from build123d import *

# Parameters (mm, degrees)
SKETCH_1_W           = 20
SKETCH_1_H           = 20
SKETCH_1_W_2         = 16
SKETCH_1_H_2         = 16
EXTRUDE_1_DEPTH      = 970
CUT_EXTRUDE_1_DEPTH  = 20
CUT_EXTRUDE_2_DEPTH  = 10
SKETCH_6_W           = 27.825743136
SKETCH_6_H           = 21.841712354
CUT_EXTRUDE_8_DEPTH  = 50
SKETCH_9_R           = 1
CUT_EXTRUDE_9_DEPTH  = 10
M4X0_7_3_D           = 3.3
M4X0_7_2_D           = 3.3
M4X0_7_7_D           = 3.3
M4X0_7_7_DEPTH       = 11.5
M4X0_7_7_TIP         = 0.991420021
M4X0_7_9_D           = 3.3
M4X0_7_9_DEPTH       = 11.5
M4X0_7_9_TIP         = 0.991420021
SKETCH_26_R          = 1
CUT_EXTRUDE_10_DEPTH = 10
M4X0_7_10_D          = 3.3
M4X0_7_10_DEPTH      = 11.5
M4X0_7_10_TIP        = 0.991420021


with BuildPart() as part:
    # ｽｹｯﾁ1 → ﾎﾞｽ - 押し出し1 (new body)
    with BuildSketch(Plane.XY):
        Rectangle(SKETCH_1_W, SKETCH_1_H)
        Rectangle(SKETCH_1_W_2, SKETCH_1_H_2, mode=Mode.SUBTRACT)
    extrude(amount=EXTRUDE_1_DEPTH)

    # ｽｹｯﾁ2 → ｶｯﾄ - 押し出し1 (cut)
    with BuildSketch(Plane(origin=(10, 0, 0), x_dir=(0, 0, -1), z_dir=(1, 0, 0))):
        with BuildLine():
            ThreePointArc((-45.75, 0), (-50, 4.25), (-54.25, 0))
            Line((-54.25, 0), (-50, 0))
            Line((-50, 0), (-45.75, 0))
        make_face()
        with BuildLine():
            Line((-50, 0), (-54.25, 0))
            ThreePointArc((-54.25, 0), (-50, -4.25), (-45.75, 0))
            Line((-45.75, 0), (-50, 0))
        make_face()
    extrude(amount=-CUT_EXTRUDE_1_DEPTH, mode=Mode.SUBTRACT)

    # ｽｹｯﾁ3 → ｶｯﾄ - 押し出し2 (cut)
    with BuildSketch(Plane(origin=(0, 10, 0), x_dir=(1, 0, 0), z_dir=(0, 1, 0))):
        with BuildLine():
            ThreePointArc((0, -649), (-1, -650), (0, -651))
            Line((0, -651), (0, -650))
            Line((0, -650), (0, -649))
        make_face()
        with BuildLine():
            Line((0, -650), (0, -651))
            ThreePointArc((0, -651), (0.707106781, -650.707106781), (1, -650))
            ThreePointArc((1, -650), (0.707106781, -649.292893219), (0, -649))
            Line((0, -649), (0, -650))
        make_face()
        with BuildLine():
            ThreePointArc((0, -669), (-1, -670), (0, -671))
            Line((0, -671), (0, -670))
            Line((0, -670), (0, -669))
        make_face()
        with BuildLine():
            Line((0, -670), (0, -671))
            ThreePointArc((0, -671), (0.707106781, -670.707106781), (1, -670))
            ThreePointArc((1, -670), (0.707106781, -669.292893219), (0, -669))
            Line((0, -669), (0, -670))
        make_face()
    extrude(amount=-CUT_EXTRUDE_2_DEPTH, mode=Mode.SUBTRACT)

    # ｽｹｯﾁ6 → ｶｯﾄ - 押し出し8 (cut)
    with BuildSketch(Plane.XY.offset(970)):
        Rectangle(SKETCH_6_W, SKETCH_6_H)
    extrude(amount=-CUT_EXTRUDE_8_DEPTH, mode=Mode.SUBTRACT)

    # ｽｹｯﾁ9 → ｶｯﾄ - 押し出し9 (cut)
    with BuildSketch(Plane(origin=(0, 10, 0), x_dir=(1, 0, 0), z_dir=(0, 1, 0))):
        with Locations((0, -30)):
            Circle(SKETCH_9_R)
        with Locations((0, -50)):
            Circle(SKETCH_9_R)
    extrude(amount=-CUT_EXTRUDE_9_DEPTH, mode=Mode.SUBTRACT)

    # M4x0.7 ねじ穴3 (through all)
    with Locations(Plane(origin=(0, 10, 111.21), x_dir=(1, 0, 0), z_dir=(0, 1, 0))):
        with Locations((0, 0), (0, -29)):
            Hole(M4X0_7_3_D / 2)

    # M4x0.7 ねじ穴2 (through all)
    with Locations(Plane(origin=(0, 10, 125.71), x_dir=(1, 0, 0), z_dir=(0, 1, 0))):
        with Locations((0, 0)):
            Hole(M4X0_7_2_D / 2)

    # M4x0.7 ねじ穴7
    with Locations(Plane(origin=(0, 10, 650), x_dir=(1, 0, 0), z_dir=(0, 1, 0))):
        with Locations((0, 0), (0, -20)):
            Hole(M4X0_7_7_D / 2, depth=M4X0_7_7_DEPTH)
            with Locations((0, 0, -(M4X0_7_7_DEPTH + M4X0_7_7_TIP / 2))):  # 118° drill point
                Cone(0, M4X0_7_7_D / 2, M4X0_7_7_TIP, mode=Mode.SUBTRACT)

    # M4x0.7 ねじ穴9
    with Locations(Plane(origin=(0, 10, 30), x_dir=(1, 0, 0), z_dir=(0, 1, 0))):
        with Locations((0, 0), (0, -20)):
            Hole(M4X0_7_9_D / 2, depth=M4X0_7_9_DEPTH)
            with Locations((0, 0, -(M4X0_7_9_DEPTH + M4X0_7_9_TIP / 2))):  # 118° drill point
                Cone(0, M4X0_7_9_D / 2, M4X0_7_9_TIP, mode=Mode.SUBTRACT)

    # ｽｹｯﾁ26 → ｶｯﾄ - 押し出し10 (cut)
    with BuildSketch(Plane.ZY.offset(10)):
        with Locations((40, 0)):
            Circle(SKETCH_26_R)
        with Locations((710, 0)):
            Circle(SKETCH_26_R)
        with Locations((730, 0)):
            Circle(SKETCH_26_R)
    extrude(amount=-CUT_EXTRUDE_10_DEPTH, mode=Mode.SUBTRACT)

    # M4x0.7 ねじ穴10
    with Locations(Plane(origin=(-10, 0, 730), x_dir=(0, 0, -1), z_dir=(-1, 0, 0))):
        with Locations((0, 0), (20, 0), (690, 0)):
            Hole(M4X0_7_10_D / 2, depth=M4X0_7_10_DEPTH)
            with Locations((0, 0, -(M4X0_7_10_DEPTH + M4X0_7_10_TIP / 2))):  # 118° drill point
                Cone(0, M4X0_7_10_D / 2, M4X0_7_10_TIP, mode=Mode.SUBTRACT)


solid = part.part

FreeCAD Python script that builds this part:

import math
import FreeCAD as App
import Part
import Sketcher

V = App.Vector


def add_polygon(sketch, points):
    """Adds a closed chain of lines whose ends are joined by coincident constraints."""
    first, n = sketch.GeometryCount, len(points)
    for a, b in zip(points, points[1:] + points[:1]):
        sketch.addGeometry(Part.LineSegment(App.Vector(*a, 0), App.Vector(*b, 0)), False)
    for i in range(n):
        sketch.addConstraint(Sketcher.Constraint("Coincident", first + i, 2, first + (i + 1) % n, 1))

doc = App.newDocument("Part")
params = doc.addObject("Spreadsheet::Sheet", "Params")
for row, (alias, value) in enumerate([
    ("sketch1_width", "20 mm"),
    ("sketch1_width2", "16 mm"),
    ("pad1_length", "970 mm"),
    ("sketch2_diameter", "8.5 mm"),
    ("pocket1_length", "20 mm"),
    ("sketch3_radius", "1 mm"),
    ("pocket2_length", "10 mm"),
    ("pocket3_length", "50 mm"),
    ("sketch5_diameter", "2 mm"),
    ("pocket4_length", "10 mm"),
    ("sketch6_diameter", "3.3 mm"),
    ("hole_diameter", "3.3 mm"),
    ("sketch7_diameter", "3.3 mm"),
    ("hole2_diameter", "3.3 mm"),
    ("sketch8_diameter", "3.3 mm"),
    ("hole3_diameter", "3.3 mm"),
    ("hole3_depth", "11.5 mm"),
    ("sketch9_diameter", "3.3 mm"),
    ("hole4_diameter", "3.3 mm"),
    ("hole4_depth", "11.5 mm"),
    ("sketch10_diameter", "2 mm"),
    ("pocket5_length", "10 mm"),
    ("sketch11_diameter", "3.3 mm"),
    ("hole5_diameter", "3.3 mm"),
    ("hole5_depth", "11.5 mm"),
], start=1):
    params.set(f"A{row}", alias)
    params.set(f"B{row}", "=" + value)
    params.setAlias(f"B{row}", alias)

body = doc.addObject("PartDesign::Body", "Body")

# Sketch on XY plane
sketch1 = body.newObject("Sketcher::SketchObject", "Sketch")
sketch1.AttachmentSupport = (doc.getObject("XY_Plane"), [""])
sketch1.MapMode = "FlatFace"
add_polygon(sketch1, [(-10, 10), (-10, -10), (10, -10), (10, 10)])  # lines 0-3
add_polygon(sketch1, [(8, -8), (-8, -8), (-8, 8), (8, 8)])  # lines 4-7
sketch1.addConstraint([
    Sketcher.Constraint("Vertical", 0),
    Sketcher.Constraint("Horizontal", 1),
    Sketcher.Constraint("Vertical", 2),
    Sketcher.Constraint("Horizontal", 3),
    Sketcher.Constraint("Horizontal", 4),
    Sketcher.Constraint("Vertical", 5),
    Sketcher.Constraint("Horizontal", 6),
    Sketcher.Constraint("Vertical", 7),
    Sketcher.Constraint("Symmetric", 0, 2, 2, 2, -1, 1),
    Sketcher.Constraint("Symmetric", 4, 2, 6, 2, -1, 1),
    Sketcher.Constraint("Equal", 3, 0),
    Sketcher.Constraint("Equal", 6, 5),
    Sketcher.Constraint("DistanceX", 1, 1, 1, 2, 20.0),
    Sketcher.Constraint("DistanceX", 4, 2, 4, 1, 16.0),
])
sketch1.setExpression("Constraints[20]", "Params.sketch1_width")
sketch1.setExpression("Constraints[21]", "Params.sketch1_width2")
pad1 = body.newObject("PartDesign::Pad", "Pad")
pad1.Profile = sketch1
pad1.setExpression("Length", "Params.pad1_length")

# Sketch on YZ plane
sketch2 = body.newObject("Sketcher::SketchObject", "Sketch001")
sketch2.AttachmentSupport = (doc.getObject("YZ_Plane"), [""])
sketch2.MapMode = "FlatFace"
sketch2.AttachmentOffset = App.Placement(V(0, 0, 10), App.Rotation())
sketch2.addGeometry(Part.Circle(V(0, 50, 0), V(0, 0, 1), 4.2), False)
sketch2.addConstraint([
    Sketcher.Constraint("PointOnObject", 0, 3, -2),
    Sketcher.Constraint("Diameter", 0, 8.5),
    Sketcher.Constraint("DistanceY", -1, 1, 0, 3, 50.0),
])
sketch2.setExpression("Constraints[1]", "Params.sketch2_diameter")
pocket1 = body.newObject("PartDesign::Pocket", "Pocket")
pocket1.Profile = sketch2
pocket1.setExpression("Length", "Params.pocket1_length")

# Sketch on XZ plane
sketch3 = body.newObject("Sketcher::SketchObject", "Sketch002")
sketch3.AttachmentSupport = (doc.getObject("XZ_Plane"), [""])
sketch3.MapMode = "FlatFace"
sketch3.AttachmentOffset = App.Placement(V(0, 0, -10), App.Rotation())
sketch3.addGeometry([
    Part.ArcOfCircle(Part.Circle(V(0, 650, 0), V(0, 0, 1), 1), math.radians(90), math.radians(270)),  # 0
    Part.ArcOfCircle(Part.Circle(V(0, 650, 0), V(0, 0, 1), 1), math.radians(0), math.radians(90)),  # 1
    Part.ArcOfCircle(Part.Circle(V(0, 650, 0), V(0, 0, 1), 1), math.radians(-90), math.radians(0)),  # 2
    Part.ArcOfCircle(Part.Circle(V(0, 670, 0), V(0, 0, 1), 1), math.radians(90), math.radians(270)),  # 3
    Part.ArcOfCircle(Part.Circle(V(0, 670, 0), V(0, 0, 1), 1), math.radians(0), math.radians(90)),  # 4
    Part.ArcOfCircle(Part.Circle(V(0, 670, 0), V(0, 0, 1), 1), math.radians(-90), math.radians(0)),  # 5
], False)
sketch3.addConstraint([
    Sketcher.Constraint("Tangent", 0, 1, 1, 2),
    Sketcher.Constraint("Tangent", 1, 1, 2, 2),
    Sketcher.Constraint("Tangent", 2, 1, 0, 2),
    Sketcher.Constraint("Tangent", 3, 1, 4, 2),
    Sketcher.Constraint("Tangent", 4, 1, 5, 2),
    Sketcher.Constraint("Tangent", 5, 1, 3, 2),
    Sketcher.Constraint("Equal", 2, 3),
    Sketcher.Constraint("PointOnObject", 0, 3, -2),
    Sketcher.Constraint("PointOnObject", 3, 3, -2),
    Sketcher.Constraint("PointOnObject", 0, 1, -2),
    Sketcher.Constraint("PointOnObject", 2, 1, -2),
    Sketcher.Constraint("PointOnObject", 3, 1, -2),
    Sketcher.Constraint("PointOnObject", 5, 1, -2),
    Sketcher.Constraint("Horizontal", 2, 3, 1, 1),
    Sketcher.Constraint("Horizontal", 5, 3, 4, 1),
    Sketcher.Constraint("Radius", 0, 1.0),
    Sketcher.Constraint("DistanceY", -1, 1, 0, 3, 650.0),
    Sketcher.Constraint("DistanceY", -1, 1, 3, 3, 670.0),
])
sketch3.setExpression("Constraints[15]", "Params.sketch3_radius")
pocket2 = body.newObject("PartDesign::Pocket", "Pocket001")
pocket2.Profile = sketch3
pocket2.setExpression("Length", "Params.pocket2_length")
pocket2.Reversed = True

# Sketch on XY plane
sketch4 = body.newObject("Sketcher::SketchObject", "Sketch003")
sketch4.AttachmentSupport = (doc.getObject("XY_Plane"), [""])
sketch4.MapMode = "FlatFace"
sketch4.AttachmentOffset = App.Placement(V(0, 0, 970), App.Rotation())
add_polygon(sketch4, [(-14, 11), (-14, -11), (14, -11), (14, 11)])  # lines 0-3
sketch4.addConstraint([
    Sketcher.Constraint("Vertical", 0),
    Sketcher.Constraint("Horizontal", 1),
    Sketcher.Constraint("Vertical", 2),
    Sketcher.Constraint("Horizontal", 3),
    Sketcher.Constraint("Symmetric", 0, 2, 2, 2, -1, 1),
    Sketcher.Constraint("DistanceX", 1, 1, 1, 2, 27.825743),
    Sketcher.Constraint("DistanceY", 0, 2, 0, 1, 21.841712),
])
pocket3 = body.newObject("PartDesign::Pocket", "Pocket002")
pocket3.Profile = sketch4
pocket3.setExpression("Length", "Params.pocket3_length")

# Sketch on XZ plane
sketch5 = body.newObject("Sketcher::SketchObject", "Sketch004")
sketch5.AttachmentSupport = (doc.getObject("XZ_Plane"), [""])
sketch5.MapMode = "FlatFace"
sketch5.AttachmentOffset = App.Placement(V(0, 0, -10), App.Rotation())
sketch5.addGeometry([
    Part.Circle(V(0, 30, 0), V(0, 0, 1), 1),
    Part.Circle(V(0, 50, 0), V(0, 0, 1), 1),
], False)
sketch5.addConstraint([
    Sketcher.Constraint("Equal", 0, 1),
    Sketcher.Constraint("PointOnObject", 0, 3, -2),
    Sketcher.Constraint("PointOnObject", 1, 3, -2),
    Sketcher.Constraint("Diameter", 0, 2.0),
    Sketcher.Constraint("DistanceY", -1, 1, 0, 3, 30.0),
    Sketcher.Constraint("DistanceY", -1, 1, 1, 3, 50.0),
])
sketch5.setExpression("Constraints[3]", "Params.sketch5_diameter")
pocket4 = body.newObject("PartDesign::Pocket", "Pocket003")
pocket4.Profile = sketch5
pocket4.setExpression("Length", "Params.pocket4_length")
pocket4.Reversed = True

# Sketch on XZ plane
sketch6 = body.newObject("Sketcher::SketchObject", "Sketch005")
sketch6.AttachmentSupport = (doc.getObject("XZ_Plane"), [""])
sketch6.MapMode = "FlatFace"
sketch6.AttachmentOffset = App.Placement(V(0, 0, -10), App.Rotation())
sketch6.addGeometry([
    Part.Circle(V(0, 111.2, 0), V(0, 0, 1), 1.6),
    Part.Circle(V(0, 140.2, 0), V(0, 0, 1), 1.6),
], False)
sketch6.addConstraint([
    Sketcher.Constraint("Equal", 0, 1),
    Sketcher.Constraint("PointOnObject", 0, 3, -2),
    Sketcher.Constraint("PointOnObject", 1, 3, -2),
    Sketcher.Constraint("Diameter", 0, 3.3),
    Sketcher.Constraint("DistanceY", 0, 3, 1, 3, 29.0),
    Sketcher.Constraint("DistanceY", -1, 1, 0, 3, 111.21),
])
sketch6.setExpression("Constraints[3]", "Params.sketch6_diameter")
doc.recompute()
hole = body.newObject("PartDesign::Hole", "Hole")
hole.Profile = sketch6
hole.ThreadType = "None"
hole.setExpression("Diameter", "Params.hole_diameter")
hole.DepthType = "ThroughAll"
hole.Reversed = True

# Sketch on XZ plane
sketch7 = body.newObject("Sketcher::SketchObject", "Sketch006")
sketch7.AttachmentSupport = (doc.getObject("XZ_Plane"), [""])
sketch7.MapMode = "FlatFace"
sketch7.AttachmentOffset = App.Placement(V(0, 0, -10), App.Rotation())
sketch7.addGeometry(Part.Circle(V(0, 125.7, 0), V(0, 0, 1), 1.6), False)
sketch7.addConstraint([
    Sketcher.Constraint("PointOnObject", 0, 3, -2),
    Sketcher.Constraint("Diameter", 0, 3.3),
    Sketcher.Constraint("DistanceY", -1, 1, 0, 3, 125.71),
])
sketch7.setExpression("Constraints[1]", "Params.sketch7_diameter")
doc.recompute()
hole2 = body.newObject("PartDesign::Hole", "Hole001")
hole2.Profile = sketch7
hole2.ThreadType = "None"
hole2.setExpression("Diameter", "Params.hole2_diameter")
hole2.DepthType = "ThroughAll"
hole2.Reversed = True

# Sketch on XZ plane
sketch8 = body.newObject("Sketcher::SketchObject", "Sketch007")
sketch8.AttachmentSupport = (doc.getObject("XZ_Plane"), [""])
sketch8.MapMode = "FlatFace"
sketch8.AttachmentOffset = App.Placement(V(0, 0, -10), App.Rotation())
sketch8.addGeometry([
    Part.Circle(V(0, 650, 0), V(0, 0, 1), 1.6),
    Part.Circle(V(0, 670, 0), V(0, 0, 1), 1.6),
], False)
sketch8.addConstraint([
    Sketcher.Constraint("Equal", 0, 1),
    Sketcher.Constraint("PointOnObject", 0, 3, -2),
    Sketcher.Constraint("PointOnObject", 1, 3, -2),
    Sketcher.Constraint("Diameter", 0, 3.3),
    Sketcher.Constraint("DistanceY", -1, 1, 0, 3, 650.0),
    Sketcher.Constraint("DistanceY", -1, 1, 1, 3, 670.0),
])
sketch8.setExpression("Constraints[3]", "Params.sketch8_diameter")
doc.recompute()
hole3 = body.newObject("PartDesign::Hole", "Hole002")
hole3.Profile = sketch8
hole3.ThreadType = "None"
hole3.setExpression("Diameter", "Params.hole3_diameter")
hole3.DepthType = "Dimension"
hole3.setExpression("Depth", "Params.hole3_depth")
hole3.DrillPoint = "Angled"
hole3.DrillPointAngle = 118
hole3.Reversed = True

# Sketch on XZ plane
sketch9 = body.newObject("Sketcher::SketchObject", "Sketch008")
sketch9.AttachmentSupport = (doc.getObject("XZ_Plane"), [""])
sketch9.MapMode = "FlatFace"
sketch9.AttachmentOffset = App.Placement(V(0, 0, -10), App.Rotation())
sketch9.addGeometry([
    Part.Circle(V(0, 30, 0), V(0, 0, 1), 1.6),
    Part.Circle(V(0, 50, 0), V(0, 0, 1), 1.6),
], False)
sketch9.addConstraint([
    Sketcher.Constraint("Equal", 0, 1),
    Sketcher.Constraint("PointOnObject", 0, 3, -2),
    Sketcher.Constraint("PointOnObject", 1, 3, -2),
    Sketcher.Constraint("Diameter", 0, 3.3),
    Sketcher.Constraint("DistanceY", -1, 1, 0, 3, 30.0),
    Sketcher.Constraint("DistanceY", -1, 1, 1, 3, 50.0),
])
sketch9.setExpression("Constraints[3]", "Params.sketch9_diameter")
doc.recompute()
hole4 = body.newObject("PartDesign::Hole", "Hole003")
hole4.Profile = sketch9
hole4.ThreadType = "None"
hole4.setExpression("Diameter", "Params.hole4_diameter")
hole4.DepthType = "Dimension"
hole4.setExpression("Depth", "Params.hole4_depth")
hole4.DrillPoint = "Angled"
hole4.DrillPointAngle = 118
hole4.Reversed = True

# Sketch on YZ plane
sketch10 = body.newObject("Sketcher::SketchObject", "Sketch009")
sketch10.AttachmentSupport = (doc.getObject("YZ_Plane"), [""])
sketch10.MapMode = "FlatFace"
sketch10.AttachmentOffset = App.Placement(V(0, 0, -10), App.Rotation())
sketch10.addGeometry([
    Part.Circle(V(0, 40, 0), V(0, 0, 1), 1),
    Part.Circle(V(0, 710, 0), V(0, 0, 1), 1),
    Part.Circle(V(0, 730, 0), V(0, 0, 1), 1),
], False)
sketch10.addConstraint([
    Sketcher.Constraint("Equal", 0, 1),
    Sketcher.Constraint("Equal", 1, 2),
    Sketcher.Constraint("PointOnObject", 0, 3, -2),
    Sketcher.Constraint("PointOnObject", 1, 3, -2),
    Sketcher.Constraint("PointOnObject", 2, 3, -2),
    Sketcher.Constraint("Diameter", 0, 2.0),
    Sketcher.Constraint("DistanceY", -1, 1, 0, 3, 40.0),
    Sketcher.Constraint("DistanceY", -1, 1, 1, 3, 710.0),
    Sketcher.Constraint("DistanceY", -1, 1, 2, 3, 730.0),
])
sketch10.setExpression("Constraints[5]", "Params.sketch10_diameter")
pocket5 = body.newObject("PartDesign::Pocket", "Pocket004")
pocket5.Profile = sketch10
pocket5.setExpression("Length", "Params.pocket5_length")
pocket5.Reversed = True

# Sketch on YZ plane
sketch11 = body.newObject("Sketcher::SketchObject", "Sketch010")
sketch11.AttachmentSupport = (doc.getObject("YZ_Plane"), [""])
sketch11.MapMode = "FlatFace"
sketch11.AttachmentOffset = App.Placement(V(0, 0, -10), App.Rotation())
sketch11.addGeometry([
    Part.Circle(V(0, 730, 0), V(0, 0, 1), 1.6),
    Part.Circle(V(0, 710, 0), V(0, 0, 1), 1.6),
    Part.Circle(V(0, 40, 0), V(0, 0, 1), 1.6),
], False)
sketch11.addConstraint([
    Sketcher.Constraint("Equal", 0, 1),
    Sketcher.Constraint("Equal", 1, 2),
    Sketcher.Constraint("PointOnObject", 0, 3, -2),
    Sketcher.Constraint("PointOnObject", 1, 3, -2),
    Sketcher.Constraint("PointOnObject", 2, 3, -2),
    Sketcher.Constraint("Diameter", 0, 3.3),
    Sketcher.Constraint("DistanceY", -1, 1, 0, 3, 730.0),
    Sketcher.Constraint("DistanceY", -1, 1, 1, 3, 710.0),
    Sketcher.Constraint("DistanceY", -1, 1, 2, 3, 40.0),
])
sketch11.setExpression("Constraints[5]", "Params.sketch11_diameter")
doc.recompute()
hole5 = body.newObject("PartDesign::Hole", "Hole004")
hole5.Profile = sketch11
hole5.ThreadType = "None"
hole5.setExpression("Diameter", "Params.hole5_diameter")
hole5.DepthType = "Dimension"
hole5.setExpression("Depth", "Params.hole5_depth")
hole5.DrillPoint = "Angled"
hole5.DrillPointAngle = 118
hole5.Reversed = True

doc.recompute()
